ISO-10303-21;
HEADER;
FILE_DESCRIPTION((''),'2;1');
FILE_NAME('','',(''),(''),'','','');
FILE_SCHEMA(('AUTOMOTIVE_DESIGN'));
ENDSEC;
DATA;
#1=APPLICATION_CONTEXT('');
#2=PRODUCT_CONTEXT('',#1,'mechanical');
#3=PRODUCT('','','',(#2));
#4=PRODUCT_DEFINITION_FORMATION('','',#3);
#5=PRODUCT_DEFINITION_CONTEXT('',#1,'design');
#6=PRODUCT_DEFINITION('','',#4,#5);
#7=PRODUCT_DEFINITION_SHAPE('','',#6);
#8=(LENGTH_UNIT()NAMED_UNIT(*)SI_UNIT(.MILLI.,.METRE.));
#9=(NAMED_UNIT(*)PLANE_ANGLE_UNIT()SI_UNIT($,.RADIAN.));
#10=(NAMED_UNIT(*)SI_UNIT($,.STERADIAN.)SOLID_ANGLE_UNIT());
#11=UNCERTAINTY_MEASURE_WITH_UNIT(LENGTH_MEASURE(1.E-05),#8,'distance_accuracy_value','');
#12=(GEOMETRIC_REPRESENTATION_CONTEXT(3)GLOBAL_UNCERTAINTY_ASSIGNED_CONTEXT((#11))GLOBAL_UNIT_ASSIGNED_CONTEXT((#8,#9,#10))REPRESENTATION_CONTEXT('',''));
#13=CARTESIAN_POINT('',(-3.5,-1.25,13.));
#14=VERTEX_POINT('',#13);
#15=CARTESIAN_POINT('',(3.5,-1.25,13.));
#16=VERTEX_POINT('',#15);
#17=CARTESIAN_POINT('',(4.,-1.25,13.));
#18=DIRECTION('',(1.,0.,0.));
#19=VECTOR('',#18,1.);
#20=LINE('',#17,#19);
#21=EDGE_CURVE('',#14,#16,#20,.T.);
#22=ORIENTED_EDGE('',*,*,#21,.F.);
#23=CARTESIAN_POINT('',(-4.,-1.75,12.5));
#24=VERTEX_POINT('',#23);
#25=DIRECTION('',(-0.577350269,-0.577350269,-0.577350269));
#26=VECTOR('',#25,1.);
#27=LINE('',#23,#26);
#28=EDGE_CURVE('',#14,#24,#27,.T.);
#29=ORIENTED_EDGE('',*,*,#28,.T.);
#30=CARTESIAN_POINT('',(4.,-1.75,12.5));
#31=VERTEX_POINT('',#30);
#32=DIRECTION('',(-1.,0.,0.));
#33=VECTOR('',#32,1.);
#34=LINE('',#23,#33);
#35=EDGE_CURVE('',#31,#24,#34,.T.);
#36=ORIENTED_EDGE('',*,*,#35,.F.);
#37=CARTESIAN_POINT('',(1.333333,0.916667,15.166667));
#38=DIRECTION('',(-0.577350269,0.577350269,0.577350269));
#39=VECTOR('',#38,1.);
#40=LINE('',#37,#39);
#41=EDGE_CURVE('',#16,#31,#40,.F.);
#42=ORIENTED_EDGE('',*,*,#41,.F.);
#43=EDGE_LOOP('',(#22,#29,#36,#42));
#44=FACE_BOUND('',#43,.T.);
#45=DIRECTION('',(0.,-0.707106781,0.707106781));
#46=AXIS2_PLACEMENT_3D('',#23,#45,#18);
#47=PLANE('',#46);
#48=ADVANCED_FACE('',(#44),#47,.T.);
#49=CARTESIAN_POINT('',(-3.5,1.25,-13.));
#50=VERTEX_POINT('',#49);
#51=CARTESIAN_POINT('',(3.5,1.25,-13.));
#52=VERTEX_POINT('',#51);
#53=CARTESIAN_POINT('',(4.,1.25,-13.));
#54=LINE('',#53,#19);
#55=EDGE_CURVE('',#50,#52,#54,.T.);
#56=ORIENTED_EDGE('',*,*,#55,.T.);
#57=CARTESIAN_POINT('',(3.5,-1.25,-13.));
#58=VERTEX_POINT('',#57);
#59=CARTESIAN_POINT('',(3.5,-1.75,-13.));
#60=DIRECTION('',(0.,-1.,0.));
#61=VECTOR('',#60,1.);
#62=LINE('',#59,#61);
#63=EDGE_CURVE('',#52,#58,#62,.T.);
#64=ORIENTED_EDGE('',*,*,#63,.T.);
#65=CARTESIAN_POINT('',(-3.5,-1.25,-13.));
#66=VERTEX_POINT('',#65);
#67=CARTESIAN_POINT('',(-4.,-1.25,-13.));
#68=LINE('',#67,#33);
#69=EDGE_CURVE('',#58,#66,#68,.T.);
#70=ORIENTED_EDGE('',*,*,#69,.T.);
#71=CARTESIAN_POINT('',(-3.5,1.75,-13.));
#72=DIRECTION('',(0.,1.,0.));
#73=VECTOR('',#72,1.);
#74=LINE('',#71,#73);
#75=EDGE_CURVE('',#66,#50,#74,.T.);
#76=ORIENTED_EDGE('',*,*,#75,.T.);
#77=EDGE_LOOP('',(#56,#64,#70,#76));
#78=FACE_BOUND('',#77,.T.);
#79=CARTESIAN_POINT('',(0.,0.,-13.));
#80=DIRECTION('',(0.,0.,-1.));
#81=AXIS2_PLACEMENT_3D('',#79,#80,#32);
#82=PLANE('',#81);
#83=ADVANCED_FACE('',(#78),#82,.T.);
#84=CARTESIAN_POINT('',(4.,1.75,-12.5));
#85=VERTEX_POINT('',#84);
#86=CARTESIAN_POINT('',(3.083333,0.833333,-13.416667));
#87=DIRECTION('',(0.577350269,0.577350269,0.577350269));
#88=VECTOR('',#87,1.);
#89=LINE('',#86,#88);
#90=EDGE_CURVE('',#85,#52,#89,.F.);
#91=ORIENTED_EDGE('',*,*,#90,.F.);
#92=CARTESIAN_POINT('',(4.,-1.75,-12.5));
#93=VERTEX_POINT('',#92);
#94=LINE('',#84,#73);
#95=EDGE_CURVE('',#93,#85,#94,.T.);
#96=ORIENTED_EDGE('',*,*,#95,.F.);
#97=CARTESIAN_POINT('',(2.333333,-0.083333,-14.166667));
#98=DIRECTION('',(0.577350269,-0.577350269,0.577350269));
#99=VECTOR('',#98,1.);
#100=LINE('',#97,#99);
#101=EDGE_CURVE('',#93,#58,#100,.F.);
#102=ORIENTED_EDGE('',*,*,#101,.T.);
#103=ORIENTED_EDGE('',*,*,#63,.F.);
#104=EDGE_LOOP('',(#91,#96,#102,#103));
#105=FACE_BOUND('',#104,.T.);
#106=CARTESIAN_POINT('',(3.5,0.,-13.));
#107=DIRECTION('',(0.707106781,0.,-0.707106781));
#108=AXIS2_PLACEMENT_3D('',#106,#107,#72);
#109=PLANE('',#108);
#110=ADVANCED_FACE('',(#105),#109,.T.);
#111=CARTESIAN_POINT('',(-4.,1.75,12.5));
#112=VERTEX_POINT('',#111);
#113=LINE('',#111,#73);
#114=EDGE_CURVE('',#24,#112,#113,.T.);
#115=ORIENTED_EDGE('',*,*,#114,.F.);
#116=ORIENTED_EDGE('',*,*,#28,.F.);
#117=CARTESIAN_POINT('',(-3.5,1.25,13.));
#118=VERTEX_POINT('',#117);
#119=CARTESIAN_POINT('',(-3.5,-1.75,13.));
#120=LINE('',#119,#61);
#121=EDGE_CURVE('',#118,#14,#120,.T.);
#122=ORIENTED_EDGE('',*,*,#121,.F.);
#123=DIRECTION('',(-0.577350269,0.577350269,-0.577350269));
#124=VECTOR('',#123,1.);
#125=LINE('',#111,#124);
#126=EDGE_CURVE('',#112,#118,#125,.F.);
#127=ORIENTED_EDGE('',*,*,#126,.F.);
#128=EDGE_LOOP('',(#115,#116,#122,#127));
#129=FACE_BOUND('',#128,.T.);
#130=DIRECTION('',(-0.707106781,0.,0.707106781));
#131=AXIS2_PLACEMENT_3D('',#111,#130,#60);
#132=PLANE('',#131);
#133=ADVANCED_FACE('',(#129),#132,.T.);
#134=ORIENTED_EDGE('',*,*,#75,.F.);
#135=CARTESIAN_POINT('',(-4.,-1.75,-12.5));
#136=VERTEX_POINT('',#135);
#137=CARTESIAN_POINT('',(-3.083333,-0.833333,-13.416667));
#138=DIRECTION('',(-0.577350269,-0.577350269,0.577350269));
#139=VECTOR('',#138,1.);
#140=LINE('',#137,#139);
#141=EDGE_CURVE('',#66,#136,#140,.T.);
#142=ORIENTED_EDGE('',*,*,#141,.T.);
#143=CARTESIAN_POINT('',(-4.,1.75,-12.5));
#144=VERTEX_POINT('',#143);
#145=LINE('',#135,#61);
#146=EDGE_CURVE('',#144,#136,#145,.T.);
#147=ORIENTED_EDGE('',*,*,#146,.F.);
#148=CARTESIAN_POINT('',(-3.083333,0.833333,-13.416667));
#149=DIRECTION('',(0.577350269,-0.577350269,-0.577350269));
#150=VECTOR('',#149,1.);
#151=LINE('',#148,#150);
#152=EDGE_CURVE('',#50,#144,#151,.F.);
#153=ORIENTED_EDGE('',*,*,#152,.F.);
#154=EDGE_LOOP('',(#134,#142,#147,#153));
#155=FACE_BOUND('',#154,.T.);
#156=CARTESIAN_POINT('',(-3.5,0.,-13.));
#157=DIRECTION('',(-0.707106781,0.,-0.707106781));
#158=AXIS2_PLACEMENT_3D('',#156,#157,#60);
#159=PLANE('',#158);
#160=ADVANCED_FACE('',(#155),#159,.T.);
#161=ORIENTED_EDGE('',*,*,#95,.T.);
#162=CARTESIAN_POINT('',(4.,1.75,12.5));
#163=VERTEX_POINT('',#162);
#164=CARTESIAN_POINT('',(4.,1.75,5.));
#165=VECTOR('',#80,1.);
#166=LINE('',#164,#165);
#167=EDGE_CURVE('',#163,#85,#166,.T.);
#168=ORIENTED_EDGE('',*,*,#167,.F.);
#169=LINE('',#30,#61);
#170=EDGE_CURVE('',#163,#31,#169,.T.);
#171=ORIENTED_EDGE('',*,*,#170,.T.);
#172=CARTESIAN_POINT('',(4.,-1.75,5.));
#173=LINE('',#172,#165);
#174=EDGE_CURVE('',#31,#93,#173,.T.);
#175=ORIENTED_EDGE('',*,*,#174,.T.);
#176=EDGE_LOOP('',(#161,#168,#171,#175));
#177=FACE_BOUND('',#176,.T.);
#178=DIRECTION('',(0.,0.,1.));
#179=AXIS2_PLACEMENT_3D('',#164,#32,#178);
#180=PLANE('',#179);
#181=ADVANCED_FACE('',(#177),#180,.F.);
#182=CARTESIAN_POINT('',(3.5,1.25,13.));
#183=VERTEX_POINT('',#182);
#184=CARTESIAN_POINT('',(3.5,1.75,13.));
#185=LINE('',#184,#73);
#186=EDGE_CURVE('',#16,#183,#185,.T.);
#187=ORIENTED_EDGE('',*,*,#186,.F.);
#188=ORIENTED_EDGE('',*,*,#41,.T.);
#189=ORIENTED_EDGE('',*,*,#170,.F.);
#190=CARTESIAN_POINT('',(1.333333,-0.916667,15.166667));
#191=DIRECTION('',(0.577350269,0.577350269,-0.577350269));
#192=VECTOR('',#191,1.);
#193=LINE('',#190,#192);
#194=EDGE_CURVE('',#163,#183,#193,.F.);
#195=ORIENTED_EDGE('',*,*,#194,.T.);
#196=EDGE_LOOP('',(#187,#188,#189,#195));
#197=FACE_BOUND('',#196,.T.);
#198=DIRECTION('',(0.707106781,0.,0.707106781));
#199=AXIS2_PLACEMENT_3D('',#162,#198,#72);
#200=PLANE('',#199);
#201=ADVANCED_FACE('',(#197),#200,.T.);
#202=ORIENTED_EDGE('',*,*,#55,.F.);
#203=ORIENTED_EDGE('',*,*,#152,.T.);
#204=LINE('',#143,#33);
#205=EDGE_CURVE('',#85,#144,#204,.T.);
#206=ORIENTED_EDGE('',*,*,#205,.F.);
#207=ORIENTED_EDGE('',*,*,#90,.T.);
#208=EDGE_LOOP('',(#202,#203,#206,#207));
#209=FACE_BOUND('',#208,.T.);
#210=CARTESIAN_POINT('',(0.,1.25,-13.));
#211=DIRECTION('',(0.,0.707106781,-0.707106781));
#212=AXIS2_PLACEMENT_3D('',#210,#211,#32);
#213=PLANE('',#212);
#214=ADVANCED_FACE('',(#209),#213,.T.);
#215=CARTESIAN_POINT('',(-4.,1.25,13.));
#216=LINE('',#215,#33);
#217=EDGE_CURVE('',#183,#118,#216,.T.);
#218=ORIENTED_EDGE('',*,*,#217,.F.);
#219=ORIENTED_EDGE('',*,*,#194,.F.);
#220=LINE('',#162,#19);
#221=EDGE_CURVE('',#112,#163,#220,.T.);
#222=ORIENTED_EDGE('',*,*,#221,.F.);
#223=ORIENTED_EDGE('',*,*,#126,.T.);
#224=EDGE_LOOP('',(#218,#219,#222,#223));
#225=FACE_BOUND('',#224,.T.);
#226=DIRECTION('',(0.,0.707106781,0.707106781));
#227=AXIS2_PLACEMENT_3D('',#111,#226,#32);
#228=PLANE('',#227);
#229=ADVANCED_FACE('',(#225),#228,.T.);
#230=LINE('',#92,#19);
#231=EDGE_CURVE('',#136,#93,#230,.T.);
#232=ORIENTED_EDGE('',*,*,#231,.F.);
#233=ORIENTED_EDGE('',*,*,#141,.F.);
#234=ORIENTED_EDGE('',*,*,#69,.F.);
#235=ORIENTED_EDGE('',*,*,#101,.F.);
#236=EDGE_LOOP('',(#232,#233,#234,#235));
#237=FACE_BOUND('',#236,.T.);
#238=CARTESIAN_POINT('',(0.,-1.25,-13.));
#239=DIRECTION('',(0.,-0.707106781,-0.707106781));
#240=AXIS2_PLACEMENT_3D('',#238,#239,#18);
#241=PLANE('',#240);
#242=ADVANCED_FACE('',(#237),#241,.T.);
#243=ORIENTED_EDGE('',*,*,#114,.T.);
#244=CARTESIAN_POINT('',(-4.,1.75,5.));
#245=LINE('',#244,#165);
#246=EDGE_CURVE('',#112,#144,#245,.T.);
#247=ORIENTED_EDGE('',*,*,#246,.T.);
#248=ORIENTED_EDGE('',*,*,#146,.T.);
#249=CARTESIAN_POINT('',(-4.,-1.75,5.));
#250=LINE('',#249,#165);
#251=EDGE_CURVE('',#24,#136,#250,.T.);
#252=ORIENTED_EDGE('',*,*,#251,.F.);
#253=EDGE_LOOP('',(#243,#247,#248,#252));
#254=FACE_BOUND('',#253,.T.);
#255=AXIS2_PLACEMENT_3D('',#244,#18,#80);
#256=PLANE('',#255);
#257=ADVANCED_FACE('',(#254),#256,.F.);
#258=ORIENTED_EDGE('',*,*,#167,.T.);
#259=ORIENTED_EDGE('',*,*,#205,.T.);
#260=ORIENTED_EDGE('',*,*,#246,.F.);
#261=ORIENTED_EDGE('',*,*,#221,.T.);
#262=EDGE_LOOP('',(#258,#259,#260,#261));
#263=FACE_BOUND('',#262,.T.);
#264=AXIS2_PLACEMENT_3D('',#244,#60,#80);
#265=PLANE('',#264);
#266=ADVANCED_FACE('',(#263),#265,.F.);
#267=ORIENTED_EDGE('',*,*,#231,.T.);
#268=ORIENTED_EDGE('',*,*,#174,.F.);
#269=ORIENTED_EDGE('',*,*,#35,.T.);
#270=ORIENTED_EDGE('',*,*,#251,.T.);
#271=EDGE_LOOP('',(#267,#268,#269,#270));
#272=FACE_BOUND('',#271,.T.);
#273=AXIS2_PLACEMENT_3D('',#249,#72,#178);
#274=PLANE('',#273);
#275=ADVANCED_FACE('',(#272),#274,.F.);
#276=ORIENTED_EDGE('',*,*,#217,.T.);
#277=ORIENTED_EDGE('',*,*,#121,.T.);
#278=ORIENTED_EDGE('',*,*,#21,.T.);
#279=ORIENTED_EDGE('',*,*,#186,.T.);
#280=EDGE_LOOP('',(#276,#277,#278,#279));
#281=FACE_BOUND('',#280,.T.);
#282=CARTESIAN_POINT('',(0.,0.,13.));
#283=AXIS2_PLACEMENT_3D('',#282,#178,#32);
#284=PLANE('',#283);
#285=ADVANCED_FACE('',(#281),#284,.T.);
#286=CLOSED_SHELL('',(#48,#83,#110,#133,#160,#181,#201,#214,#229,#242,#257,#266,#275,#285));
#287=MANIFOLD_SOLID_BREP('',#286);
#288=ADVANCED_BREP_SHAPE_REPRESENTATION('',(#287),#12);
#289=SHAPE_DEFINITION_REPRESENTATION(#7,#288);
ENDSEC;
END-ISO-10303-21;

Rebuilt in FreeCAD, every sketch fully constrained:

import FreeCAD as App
import Part
import Sketcher
Q = App.Units.Quantity


def edges_at(feature, points):
    """Names of the edges that pass closest to the given points."""
    edges = feature.Shape.Edges
    near = lambda p: min(range(len(edges)), key=lambda i: edges[i].distToShape(Part.Vertex(*p))[0])
    return sorted({f"Edge{near(p) + 1}" for p in points})

doc = App.newDocument("Part")
body = doc.addObject("PartDesign::Body", "Body")

# Sketch on XY plane
sketch1 = body.newObject("Sketcher::SketchObject", "Sketch")
sketch1.AttachmentSupport = (doc.getObject("XY_Plane"), [""])
sketch1.MapMode = "FlatFace"
sketch1.addGeometry([
    Part.LineSegment(App.Vector(-4, 1.75, 0), App.Vector(-4, -1.75, 0)),
    Part.LineSegment(App.Vector(-4, -1.75, 0), App.Vector(4, -1.75, 0)),
    Part.LineSegment(App.Vector(4, -1.75, 0), App.Vector(4, 1.75, 0)),
    Part.LineSegment(App.Vector(4, 1.75, 0), App.Vector(-4, 1.75, 0)),
], False)
sketch1.addConstraint([
    Sketcher.Constraint("Coincident", 0, 2, 1, 1),
    Sketcher.Constraint("Coincident", 1, 2, 2, 1),
    Sketcher.Constraint("Coincident", 2, 2, 3, 1),
    Sketcher.Constraint("Coincident", 3, 2, 0, 1),
    Sketcher.Constraint("Vertical", 0),
    Sketcher.Constraint("Horizontal", 1),
    Sketcher.Constraint("Vertical", 2),
    Sketcher.Constraint("Horizontal", 3),
    Sketcher.Constraint("Symmetric", 0, 2, 2, 2, -1, 1),
    Sketcher.Constraint("DistanceX", 1, 1, 1, 2, Q("8 mm")),
    Sketcher.Constraint("DistanceY", 0, 2, 0, 1, Q("3.5 mm")),
])
pad1 = body.newObject("PartDesign::Pad", "Pad")
pad1.Profile = sketch1
pad1.Length = 10
pad1.Midplane = True

# Sketch on XY plane
sketch2 = body.newObject("Sketcher::SketchObject", "Sketch001")
sketch2.AttachmentSupport = (doc.getObject("XY_Plane"), [""])
sketch2.MapMode = "FlatFace"
sketch2.AttachmentOffset = App.Placement(App.Vector(0, 0, -5), App.Rotation())
sketch2.addGeometry([
    Part.LineSegment(App.Vector(4, 1.75, 0), App.Vector(4, -1.75, 0)),
    Part.LineSegment(App.Vector(4, -1.75, 0), App.Vector(-4, -1.75, 0)),
    Part.LineSegment(App.Vector(-4, -1.75, 0), App.Vector(-4, 1.75, 0)),
    Part.LineSegment(App.Vector(-4, 1.75, 0), App.Vector(4, 1.75, 0)),
], False)
sketch2.addConstraint([
    Sketcher.Constraint("Coincident", 0, 2, 1, 1),
    Sketcher.Constraint("Coincident", 1, 2, 2, 1),
    Sketcher.Constraint("Coincident", 2, 2, 3, 1),
    Sketcher.Constraint("Coincident", 3, 2, 0, 1),
    Sketcher.Constraint("Vertical", 0),
    Sketcher.Constraint("Horizontal", 1),
    Sketcher.Constraint("Vertical", 2),
    Sketcher.Constraint("Horizontal", 3),
    Sketcher.Constraint("Symmetric", 0, 2, 2, 2, -1, 1),
    Sketcher.Constraint("DistanceX", 1, 2, 1, 1, Q("8 mm")),
    Sketcher.Constraint("DistanceY", 0, 2, 0, 1, Q("3.5 mm")),
])
pad2 = body.newObject("PartDesign::Pad", "Pad001")
pad2.Profile = sketch2
pad2.Length = 8
pad2.Reversed = True
doc.recompute()

mirrored = body.newObject("PartDesign::Mirrored", "Mirrored")
mirrored.Originals = [pad2]
mirrored.MirrorPlane = (doc.getObject("XY_Plane"), [""])
body.Tip = mirrored
doc.recompute()

chamfer = body.newObject("PartDesign::Chamfer", "Chamfer")
chamfer.Base = (mirrored, edges_at(mirrored, [
    (-4, 0, -13),
    (0, 1.75, -13),
    (4, 0, -13),
    (0, -1.75, -13),
    (-4, 0, 13),
    (0, -1.75, 13),
    (4, 0, 13),
    (0, 1.75, 13),
]))
chamfer.Size = 0.5

doc.recompute()
